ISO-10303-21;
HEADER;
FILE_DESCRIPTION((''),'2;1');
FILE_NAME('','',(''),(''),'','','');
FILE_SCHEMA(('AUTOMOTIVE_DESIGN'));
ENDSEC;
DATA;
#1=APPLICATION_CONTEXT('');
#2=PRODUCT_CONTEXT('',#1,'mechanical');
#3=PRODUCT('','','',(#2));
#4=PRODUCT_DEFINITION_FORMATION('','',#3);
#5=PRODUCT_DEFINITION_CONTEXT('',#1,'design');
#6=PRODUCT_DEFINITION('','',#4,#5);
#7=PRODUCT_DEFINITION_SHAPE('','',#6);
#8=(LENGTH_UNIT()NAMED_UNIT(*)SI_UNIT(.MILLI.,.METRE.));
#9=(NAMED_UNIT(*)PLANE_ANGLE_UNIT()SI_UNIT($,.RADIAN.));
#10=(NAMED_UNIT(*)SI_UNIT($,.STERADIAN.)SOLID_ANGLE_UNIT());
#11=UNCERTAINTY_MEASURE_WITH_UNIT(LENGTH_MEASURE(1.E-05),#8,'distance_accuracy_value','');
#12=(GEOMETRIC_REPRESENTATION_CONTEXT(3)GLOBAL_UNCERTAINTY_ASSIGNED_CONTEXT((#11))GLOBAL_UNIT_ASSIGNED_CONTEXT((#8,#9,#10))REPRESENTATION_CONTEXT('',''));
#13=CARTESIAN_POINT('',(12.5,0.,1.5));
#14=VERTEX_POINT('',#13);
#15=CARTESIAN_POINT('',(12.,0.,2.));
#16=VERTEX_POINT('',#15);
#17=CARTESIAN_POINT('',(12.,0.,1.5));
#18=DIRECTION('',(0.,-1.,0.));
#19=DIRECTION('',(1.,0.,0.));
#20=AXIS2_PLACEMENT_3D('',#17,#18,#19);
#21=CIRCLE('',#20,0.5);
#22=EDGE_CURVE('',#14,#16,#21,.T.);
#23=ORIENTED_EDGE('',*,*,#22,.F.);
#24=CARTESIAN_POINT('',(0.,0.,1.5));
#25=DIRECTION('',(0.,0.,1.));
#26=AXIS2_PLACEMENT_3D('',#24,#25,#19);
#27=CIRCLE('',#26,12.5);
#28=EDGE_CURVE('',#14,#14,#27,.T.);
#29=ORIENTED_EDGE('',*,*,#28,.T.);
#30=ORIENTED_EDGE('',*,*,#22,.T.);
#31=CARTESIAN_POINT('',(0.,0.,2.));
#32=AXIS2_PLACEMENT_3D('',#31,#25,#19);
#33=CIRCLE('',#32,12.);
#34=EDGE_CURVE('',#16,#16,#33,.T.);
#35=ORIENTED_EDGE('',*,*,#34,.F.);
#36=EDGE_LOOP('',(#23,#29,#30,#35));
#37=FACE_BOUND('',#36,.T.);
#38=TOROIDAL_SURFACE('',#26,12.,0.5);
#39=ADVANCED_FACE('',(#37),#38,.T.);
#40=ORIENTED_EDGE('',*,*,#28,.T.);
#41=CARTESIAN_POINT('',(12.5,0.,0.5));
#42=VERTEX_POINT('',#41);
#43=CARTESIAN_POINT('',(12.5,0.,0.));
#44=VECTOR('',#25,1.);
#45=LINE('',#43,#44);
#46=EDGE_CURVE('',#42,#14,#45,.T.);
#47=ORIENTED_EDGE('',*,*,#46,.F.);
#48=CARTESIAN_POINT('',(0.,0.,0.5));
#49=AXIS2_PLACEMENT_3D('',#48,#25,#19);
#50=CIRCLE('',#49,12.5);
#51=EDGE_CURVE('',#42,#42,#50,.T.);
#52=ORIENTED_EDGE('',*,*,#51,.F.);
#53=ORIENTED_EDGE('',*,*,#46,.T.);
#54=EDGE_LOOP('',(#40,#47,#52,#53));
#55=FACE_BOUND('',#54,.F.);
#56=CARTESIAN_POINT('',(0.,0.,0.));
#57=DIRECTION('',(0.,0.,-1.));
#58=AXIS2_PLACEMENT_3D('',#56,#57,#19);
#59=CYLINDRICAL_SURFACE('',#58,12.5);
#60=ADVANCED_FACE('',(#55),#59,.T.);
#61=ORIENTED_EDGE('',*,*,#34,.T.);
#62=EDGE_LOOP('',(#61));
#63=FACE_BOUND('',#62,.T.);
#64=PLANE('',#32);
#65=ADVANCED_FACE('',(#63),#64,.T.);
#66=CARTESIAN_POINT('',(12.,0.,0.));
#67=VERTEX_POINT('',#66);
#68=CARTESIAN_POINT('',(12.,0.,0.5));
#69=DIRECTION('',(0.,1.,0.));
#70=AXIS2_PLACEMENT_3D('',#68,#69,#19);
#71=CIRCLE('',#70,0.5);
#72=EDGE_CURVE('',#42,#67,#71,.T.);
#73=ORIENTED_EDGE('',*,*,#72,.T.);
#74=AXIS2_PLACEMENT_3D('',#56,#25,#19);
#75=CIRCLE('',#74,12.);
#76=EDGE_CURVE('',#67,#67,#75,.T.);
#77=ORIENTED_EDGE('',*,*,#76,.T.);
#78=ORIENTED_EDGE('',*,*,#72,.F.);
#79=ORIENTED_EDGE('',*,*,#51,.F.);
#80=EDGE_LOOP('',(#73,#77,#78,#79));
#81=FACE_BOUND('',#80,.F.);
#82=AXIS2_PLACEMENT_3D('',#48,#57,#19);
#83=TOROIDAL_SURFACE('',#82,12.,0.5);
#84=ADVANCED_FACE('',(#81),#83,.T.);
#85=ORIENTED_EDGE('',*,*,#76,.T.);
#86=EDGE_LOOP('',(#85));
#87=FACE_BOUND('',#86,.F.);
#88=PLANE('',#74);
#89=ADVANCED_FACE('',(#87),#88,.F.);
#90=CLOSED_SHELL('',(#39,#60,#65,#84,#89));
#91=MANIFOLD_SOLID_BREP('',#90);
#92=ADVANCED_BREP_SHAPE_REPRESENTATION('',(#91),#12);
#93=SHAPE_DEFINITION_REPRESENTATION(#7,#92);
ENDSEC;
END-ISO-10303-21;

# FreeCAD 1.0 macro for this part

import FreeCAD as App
import Part
import Sketcher
Q = App.Units.Quantity


def edges_at(feature, points):
    """Names of the edges that pass closest to the given points."""
    edges = feature.Shape.Edges
    near = lambda p: min(range(len(edges)), key=lambda i: edges[i].distToShape(Part.Vertex(*p))[0])
    return sorted({f"Edge{near(p) + 1}" for p in points})

doc = App.newDocument("Part")
body = doc.addObject("PartDesign::Body", "Body")

sketch1 = body.newObject("Sketcher::SketchObject", "Sketch")
sketch1.AttachmentSupport = (doc.getObject("XY_Plane"), [""])
sketch1.MapMode = "FlatFace"
sketch1.addGeometry(Part.Circle(App.Vector(0, 0, 0), App.Vector(0, 0, 1), 12), False)
sketch1.addConstraint([
    Sketcher.Constraint("Coincident", 0, 3, -1, 1),
    Sketcher.Constraint("Diameter", 0, Q("25 mm")),
])
pad1 = body.newObject("PartDesign::Pad", "Pad")
pad1.Profile = sketch1
pad1.Length = 2
doc.recompute()

fillet = body.newObject("PartDesign::Fillet", "Fillet")
fillet.Base = (pad1, edges_at(pad1, [(-12.5, 0, 2), (-12.5, 0, 0)]))
fillet.Radius = 0.5

doc.recompute()
